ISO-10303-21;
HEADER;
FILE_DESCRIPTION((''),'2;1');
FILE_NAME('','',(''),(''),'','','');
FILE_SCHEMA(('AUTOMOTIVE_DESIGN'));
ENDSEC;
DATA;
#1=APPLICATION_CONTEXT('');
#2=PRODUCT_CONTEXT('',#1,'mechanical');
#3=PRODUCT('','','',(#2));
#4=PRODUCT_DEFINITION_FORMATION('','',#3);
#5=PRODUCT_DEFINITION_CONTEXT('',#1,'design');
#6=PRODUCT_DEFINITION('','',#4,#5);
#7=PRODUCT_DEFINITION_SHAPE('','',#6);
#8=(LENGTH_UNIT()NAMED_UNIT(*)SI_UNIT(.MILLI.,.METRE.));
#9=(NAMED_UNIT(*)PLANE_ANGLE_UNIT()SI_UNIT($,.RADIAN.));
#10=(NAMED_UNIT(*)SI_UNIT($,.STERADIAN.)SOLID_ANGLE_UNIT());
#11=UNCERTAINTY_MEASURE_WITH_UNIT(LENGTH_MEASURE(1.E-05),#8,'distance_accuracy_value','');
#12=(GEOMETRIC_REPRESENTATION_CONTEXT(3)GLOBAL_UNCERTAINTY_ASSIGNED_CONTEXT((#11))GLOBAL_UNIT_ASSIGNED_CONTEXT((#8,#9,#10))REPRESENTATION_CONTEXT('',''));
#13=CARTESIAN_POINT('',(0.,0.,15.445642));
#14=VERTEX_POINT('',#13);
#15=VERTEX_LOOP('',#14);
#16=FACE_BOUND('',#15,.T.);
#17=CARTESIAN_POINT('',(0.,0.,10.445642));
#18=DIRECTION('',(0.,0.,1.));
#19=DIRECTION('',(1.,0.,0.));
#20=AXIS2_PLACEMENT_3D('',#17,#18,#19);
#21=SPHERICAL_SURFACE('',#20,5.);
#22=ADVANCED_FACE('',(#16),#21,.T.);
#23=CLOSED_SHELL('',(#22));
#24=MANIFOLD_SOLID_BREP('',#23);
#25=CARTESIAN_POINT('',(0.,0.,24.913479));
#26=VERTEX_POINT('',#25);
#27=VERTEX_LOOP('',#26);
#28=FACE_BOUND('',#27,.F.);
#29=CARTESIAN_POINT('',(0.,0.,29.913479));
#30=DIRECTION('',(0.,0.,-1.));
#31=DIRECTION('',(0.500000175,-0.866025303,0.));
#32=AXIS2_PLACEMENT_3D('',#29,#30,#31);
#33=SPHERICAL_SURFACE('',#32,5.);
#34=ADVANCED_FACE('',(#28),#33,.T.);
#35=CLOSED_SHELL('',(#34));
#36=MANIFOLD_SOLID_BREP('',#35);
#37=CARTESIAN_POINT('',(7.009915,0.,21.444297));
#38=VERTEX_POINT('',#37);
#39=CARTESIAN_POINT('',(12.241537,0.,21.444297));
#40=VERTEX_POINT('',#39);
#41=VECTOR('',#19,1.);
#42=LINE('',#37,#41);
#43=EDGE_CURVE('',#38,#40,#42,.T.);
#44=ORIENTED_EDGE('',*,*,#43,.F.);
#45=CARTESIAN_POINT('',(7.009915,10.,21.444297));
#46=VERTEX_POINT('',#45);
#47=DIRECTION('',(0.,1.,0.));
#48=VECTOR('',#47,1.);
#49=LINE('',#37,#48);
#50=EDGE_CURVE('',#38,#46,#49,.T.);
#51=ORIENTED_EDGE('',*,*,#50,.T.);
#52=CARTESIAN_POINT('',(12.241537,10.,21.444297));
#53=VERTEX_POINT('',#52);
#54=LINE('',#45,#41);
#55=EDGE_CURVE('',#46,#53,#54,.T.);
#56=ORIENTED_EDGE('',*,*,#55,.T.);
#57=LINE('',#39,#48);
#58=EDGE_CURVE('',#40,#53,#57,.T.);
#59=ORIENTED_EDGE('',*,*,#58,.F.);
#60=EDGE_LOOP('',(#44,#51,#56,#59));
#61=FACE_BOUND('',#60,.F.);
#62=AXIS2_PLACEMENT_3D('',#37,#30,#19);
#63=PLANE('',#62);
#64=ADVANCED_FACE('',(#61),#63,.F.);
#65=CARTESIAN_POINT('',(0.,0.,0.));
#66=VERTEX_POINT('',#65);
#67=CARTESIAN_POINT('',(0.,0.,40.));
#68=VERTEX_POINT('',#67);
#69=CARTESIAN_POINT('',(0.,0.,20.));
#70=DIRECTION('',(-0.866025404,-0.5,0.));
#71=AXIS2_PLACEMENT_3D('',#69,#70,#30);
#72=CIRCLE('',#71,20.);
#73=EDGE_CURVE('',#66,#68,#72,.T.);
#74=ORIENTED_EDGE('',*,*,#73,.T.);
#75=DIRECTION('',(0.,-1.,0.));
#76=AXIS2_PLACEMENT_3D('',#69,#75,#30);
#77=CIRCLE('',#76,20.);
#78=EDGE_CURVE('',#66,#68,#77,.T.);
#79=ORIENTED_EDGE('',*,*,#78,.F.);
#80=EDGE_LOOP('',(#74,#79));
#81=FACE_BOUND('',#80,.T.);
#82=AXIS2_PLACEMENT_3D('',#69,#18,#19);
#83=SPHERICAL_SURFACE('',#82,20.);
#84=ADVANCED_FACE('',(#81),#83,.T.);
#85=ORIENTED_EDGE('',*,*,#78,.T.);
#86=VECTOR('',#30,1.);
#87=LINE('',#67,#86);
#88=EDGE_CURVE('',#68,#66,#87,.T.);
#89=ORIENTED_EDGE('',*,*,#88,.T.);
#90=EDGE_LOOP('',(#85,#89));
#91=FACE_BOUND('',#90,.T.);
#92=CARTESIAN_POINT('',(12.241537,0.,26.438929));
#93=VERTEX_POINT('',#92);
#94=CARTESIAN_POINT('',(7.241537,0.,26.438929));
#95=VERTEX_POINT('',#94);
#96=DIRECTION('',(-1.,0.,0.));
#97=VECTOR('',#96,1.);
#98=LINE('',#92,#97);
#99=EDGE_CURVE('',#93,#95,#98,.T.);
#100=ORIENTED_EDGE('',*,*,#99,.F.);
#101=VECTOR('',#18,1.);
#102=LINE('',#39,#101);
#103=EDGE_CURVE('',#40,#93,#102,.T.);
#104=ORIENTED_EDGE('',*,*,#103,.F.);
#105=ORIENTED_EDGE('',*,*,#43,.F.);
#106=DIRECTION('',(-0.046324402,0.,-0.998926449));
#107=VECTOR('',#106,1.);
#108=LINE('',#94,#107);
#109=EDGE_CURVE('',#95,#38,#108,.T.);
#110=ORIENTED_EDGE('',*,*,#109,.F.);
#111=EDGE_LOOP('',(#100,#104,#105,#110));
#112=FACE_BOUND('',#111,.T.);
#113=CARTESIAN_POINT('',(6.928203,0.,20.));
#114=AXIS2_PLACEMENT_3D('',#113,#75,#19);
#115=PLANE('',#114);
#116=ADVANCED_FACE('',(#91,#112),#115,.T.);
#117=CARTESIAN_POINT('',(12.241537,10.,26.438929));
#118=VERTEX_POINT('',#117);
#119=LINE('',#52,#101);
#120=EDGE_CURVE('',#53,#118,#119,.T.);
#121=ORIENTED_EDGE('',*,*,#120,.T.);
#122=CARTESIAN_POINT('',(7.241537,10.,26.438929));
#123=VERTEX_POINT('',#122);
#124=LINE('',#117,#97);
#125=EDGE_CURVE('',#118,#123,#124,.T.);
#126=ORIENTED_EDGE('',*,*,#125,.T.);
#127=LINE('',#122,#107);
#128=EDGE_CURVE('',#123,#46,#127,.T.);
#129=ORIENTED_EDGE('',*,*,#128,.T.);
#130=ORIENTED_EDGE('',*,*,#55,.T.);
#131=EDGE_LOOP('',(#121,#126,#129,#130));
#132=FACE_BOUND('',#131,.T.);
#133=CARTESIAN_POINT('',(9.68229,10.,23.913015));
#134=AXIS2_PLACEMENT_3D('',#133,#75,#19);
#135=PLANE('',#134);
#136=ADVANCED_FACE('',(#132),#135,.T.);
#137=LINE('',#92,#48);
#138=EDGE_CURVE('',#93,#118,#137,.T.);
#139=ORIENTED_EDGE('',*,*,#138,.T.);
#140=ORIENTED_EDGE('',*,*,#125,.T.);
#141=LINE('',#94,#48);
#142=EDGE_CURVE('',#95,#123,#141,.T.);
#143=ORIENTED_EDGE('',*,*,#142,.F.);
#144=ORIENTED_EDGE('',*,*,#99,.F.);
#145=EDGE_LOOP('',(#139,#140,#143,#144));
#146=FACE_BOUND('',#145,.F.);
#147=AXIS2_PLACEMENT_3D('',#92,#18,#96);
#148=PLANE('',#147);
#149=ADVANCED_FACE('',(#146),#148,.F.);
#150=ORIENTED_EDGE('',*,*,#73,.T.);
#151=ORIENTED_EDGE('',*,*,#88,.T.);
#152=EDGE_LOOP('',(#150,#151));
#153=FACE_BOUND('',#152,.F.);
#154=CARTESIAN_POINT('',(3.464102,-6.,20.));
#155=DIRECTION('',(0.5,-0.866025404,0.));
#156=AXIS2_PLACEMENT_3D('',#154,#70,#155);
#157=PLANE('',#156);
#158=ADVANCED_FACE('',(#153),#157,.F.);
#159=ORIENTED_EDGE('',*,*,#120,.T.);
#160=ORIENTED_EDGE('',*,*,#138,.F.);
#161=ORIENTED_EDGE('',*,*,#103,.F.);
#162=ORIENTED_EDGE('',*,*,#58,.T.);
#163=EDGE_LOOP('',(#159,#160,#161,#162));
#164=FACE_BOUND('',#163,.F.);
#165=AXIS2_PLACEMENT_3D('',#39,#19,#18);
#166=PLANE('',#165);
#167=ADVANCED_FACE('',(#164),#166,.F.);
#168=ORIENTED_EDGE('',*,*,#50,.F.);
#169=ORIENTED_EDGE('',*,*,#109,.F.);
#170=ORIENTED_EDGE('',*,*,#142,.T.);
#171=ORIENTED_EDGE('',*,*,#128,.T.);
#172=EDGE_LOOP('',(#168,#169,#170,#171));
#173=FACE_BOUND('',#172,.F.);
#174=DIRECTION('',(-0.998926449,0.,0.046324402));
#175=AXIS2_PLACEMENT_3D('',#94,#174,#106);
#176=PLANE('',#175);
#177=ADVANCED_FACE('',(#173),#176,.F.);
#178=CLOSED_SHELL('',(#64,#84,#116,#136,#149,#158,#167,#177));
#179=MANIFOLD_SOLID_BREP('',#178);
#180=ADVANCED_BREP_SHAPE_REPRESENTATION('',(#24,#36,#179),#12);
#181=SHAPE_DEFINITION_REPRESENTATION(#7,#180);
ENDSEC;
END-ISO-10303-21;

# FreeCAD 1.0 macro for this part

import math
import FreeCAD as App
import Part
import Sketcher
from FreeCAD import Vector

doc = App.newDocument("Part")
body = doc.addObject("PartDesign::Body", "Body")

sketch1 = doc.addObject("Sketcher::SketchObject", "Sketch")
body.addObject(sketch1)
sketch1.AttachmentSupport = (doc.XZ_Plane, [""])
sketch1.MapMode = "FlatFace"
sketch1.addGeometry([
    Part.LineSegment(Vector(0, 40, 0), Vector(0, 0, 0)),
    Part.ArcOfCircle(Part.Circle(Vector(0, 20, 0), Vector(0, 0, 1), 20), math.radians(-90), math.radians(90)),
], False)
sketch1.addConstraint([
    Sketcher.Constraint("Coincident", 0, 1, 1, 2),
    Sketcher.Constraint("Coincident", 1, 1, 0, 2),
    Sketcher.Constraint("Vertical", 0),
    Sketcher.Constraint("Coincident", 1, 1, -1, 1),
    Sketcher.Constraint("PointOnObject", 1, 3, -2),
    Sketcher.Constraint("Radius", 1, 20.0),
])
revolution = doc.addObject("PartDesign::Revolution", "Revolution")
body.addObject(revolution)
revolution.Profile = sketch1
revolution.ReferenceAxis = (sketch1, ["V_Axis"])
revolution.Angle = 300

sketch2 = doc.addObject("Sketcher::SketchObject", "Sketch001")
body.addObject(sketch2)
sketch2.AttachmentSupport = (doc.XZ_Plane, [""])
sketch2.MapMode = "FlatFace"
sketch2.addGeometry([
    Part.LineSegment(Vector(12.2, 26.4, 0), Vector(7.2, 26.4, 0)),
    Part.LineSegment(Vector(7.2, 26.4, 0), Vector(7, 21.4, 0)),
    Part.LineSegment(Vector(7, 21.4, 0), Vector(12.2, 21.4, 0)),
    Part.LineSegment(Vector(12.2, 21.4, 0), Vector(12.2, 26.4, 0)),
], False)
sketch2.addConstraint([
    Sketcher.Constraint("Coincident", 0, 2, 1, 1),
    Sketcher.Constraint("Coincident", 1, 2, 2, 1),
    Sketcher.Constraint("Coincident", 2, 2, 3, 1),
    Sketcher.Constraint("Coincident", 3, 2, 0, 1),
    Sketcher.Constraint("Horizontal", 0),
    Sketcher.Constraint("Horizontal", 2),
    Sketcher.Constraint("Vertical", 3),
    Sketcher.Constraint("DistanceX", 0, 2, 0, 1, 5.0),
    Sketcher.Constraint("Distance", 1, 5.0),
    Sketcher.Constraint("DistanceX", 2, 1, 2, 2, 5.231622),
    Sketcher.Constraint("DistanceY", -1, 1, 0, 2, 26.438929),
    Sketcher.Constraint("DistanceX", -1, 1, 0, 2, 7.241537),
])
pocket1 = doc.addObject("PartDesign::Pocket", "Pocket")
body.addObject(pocket1)
pocket1.Profile = sketch2
pocket1.Length = 10
body2 = doc.addObject("PartDesign::Body", "Body001")

sketch3 = doc.addObject("Sketcher::SketchObject", "Sketch002")
body2.addObject(sketch3)
sketch3.AttachmentSupport = (doc.getObject("XZ_Plane001"), [""])
sketch3.MapMode = "FlatFace"
sketch3.addGeometry([
    Part.ArcOfCircle(Part.Circle(Vector(0, 10, 0), Vector(0, 0, 1), 5), math.radians(-90), math.radians(90)),
    Part.LineSegment(Vector(0, 15, 0), Vector(0, 5, 0)),
], False)
sketch3.addConstraint([
    Sketcher.Constraint("Coincident", 0, 1, 1, 2),
    Sketcher.Constraint("Coincident", 1, 1, 0, 2),
    Sketcher.Constraint("Vertical", 1),
    Sketcher.Constraint("PointOnObject", 0, 3, -2),
    Sketcher.Constraint("PointOnObject", 0, 1, -2),
    Sketcher.Constraint("Radius", 0, 5.0),
    Sketcher.Constraint("DistanceY", -1, 1, 0, 1, 5.445642),
])
revolution2 = doc.addObject("PartDesign::Revolution", "Revolution001")
body2.addObject(revolution2)
revolution2.Profile = sketch3
revolution2.ReferenceAxis = (sketch3, ["V_Axis"])
revolution2.Angle = 360
body3 = doc.addObject("PartDesign::Body", "Body002")

sketch4 = doc.addObject("Sketcher::SketchObject", "Sketch003")
body3.addObject(sketch4)
sketch4.Placement = App.Placement(Vector(0, 0, 0), App.Rotation(Vector(-0.500000175, 0.866025303, 0), Vector(0, 0, 1), Vector(0.866025303, 0.500000175, 0), "ZXY"))
sketch4.addGeometry([
    Part.LineSegment(Vector(0, 25, 0), Vector(0, 35, 0)),
    Part.ArcOfCircle(Part.Circle(Vector(0, 30, 0), Vector(0, 0, 1), 5), math.radians(90), math.radians(270)),
], False)
sketch4.addConstraint([
    Sketcher.Constraint("Coincident", 0, 1, 1, 2),
    Sketcher.Constraint("Coincident", 1, 1, 0, 2),
    Sketcher.Constraint("Vertical", 0),
    Sketcher.Constraint("PointOnObject", 1, 3, -2),
    Sketcher.Constraint("PointOnObject", 0, 1, -2),
    Sketcher.Constraint("Radius", 1, 5.0),
    Sketcher.Constraint("DistanceY", -1, 1, 1, 3, 29.913479),
])
revolution3 = doc.addObject("PartDesign::Revolution", "Revolution002")
body3.addObject(revolution3)
revolution3.Profile = sketch4
revolution3.ReferenceAxis = (sketch4, ["V_Axis"])
revolution3.Angle = 360

doc.recompute()
